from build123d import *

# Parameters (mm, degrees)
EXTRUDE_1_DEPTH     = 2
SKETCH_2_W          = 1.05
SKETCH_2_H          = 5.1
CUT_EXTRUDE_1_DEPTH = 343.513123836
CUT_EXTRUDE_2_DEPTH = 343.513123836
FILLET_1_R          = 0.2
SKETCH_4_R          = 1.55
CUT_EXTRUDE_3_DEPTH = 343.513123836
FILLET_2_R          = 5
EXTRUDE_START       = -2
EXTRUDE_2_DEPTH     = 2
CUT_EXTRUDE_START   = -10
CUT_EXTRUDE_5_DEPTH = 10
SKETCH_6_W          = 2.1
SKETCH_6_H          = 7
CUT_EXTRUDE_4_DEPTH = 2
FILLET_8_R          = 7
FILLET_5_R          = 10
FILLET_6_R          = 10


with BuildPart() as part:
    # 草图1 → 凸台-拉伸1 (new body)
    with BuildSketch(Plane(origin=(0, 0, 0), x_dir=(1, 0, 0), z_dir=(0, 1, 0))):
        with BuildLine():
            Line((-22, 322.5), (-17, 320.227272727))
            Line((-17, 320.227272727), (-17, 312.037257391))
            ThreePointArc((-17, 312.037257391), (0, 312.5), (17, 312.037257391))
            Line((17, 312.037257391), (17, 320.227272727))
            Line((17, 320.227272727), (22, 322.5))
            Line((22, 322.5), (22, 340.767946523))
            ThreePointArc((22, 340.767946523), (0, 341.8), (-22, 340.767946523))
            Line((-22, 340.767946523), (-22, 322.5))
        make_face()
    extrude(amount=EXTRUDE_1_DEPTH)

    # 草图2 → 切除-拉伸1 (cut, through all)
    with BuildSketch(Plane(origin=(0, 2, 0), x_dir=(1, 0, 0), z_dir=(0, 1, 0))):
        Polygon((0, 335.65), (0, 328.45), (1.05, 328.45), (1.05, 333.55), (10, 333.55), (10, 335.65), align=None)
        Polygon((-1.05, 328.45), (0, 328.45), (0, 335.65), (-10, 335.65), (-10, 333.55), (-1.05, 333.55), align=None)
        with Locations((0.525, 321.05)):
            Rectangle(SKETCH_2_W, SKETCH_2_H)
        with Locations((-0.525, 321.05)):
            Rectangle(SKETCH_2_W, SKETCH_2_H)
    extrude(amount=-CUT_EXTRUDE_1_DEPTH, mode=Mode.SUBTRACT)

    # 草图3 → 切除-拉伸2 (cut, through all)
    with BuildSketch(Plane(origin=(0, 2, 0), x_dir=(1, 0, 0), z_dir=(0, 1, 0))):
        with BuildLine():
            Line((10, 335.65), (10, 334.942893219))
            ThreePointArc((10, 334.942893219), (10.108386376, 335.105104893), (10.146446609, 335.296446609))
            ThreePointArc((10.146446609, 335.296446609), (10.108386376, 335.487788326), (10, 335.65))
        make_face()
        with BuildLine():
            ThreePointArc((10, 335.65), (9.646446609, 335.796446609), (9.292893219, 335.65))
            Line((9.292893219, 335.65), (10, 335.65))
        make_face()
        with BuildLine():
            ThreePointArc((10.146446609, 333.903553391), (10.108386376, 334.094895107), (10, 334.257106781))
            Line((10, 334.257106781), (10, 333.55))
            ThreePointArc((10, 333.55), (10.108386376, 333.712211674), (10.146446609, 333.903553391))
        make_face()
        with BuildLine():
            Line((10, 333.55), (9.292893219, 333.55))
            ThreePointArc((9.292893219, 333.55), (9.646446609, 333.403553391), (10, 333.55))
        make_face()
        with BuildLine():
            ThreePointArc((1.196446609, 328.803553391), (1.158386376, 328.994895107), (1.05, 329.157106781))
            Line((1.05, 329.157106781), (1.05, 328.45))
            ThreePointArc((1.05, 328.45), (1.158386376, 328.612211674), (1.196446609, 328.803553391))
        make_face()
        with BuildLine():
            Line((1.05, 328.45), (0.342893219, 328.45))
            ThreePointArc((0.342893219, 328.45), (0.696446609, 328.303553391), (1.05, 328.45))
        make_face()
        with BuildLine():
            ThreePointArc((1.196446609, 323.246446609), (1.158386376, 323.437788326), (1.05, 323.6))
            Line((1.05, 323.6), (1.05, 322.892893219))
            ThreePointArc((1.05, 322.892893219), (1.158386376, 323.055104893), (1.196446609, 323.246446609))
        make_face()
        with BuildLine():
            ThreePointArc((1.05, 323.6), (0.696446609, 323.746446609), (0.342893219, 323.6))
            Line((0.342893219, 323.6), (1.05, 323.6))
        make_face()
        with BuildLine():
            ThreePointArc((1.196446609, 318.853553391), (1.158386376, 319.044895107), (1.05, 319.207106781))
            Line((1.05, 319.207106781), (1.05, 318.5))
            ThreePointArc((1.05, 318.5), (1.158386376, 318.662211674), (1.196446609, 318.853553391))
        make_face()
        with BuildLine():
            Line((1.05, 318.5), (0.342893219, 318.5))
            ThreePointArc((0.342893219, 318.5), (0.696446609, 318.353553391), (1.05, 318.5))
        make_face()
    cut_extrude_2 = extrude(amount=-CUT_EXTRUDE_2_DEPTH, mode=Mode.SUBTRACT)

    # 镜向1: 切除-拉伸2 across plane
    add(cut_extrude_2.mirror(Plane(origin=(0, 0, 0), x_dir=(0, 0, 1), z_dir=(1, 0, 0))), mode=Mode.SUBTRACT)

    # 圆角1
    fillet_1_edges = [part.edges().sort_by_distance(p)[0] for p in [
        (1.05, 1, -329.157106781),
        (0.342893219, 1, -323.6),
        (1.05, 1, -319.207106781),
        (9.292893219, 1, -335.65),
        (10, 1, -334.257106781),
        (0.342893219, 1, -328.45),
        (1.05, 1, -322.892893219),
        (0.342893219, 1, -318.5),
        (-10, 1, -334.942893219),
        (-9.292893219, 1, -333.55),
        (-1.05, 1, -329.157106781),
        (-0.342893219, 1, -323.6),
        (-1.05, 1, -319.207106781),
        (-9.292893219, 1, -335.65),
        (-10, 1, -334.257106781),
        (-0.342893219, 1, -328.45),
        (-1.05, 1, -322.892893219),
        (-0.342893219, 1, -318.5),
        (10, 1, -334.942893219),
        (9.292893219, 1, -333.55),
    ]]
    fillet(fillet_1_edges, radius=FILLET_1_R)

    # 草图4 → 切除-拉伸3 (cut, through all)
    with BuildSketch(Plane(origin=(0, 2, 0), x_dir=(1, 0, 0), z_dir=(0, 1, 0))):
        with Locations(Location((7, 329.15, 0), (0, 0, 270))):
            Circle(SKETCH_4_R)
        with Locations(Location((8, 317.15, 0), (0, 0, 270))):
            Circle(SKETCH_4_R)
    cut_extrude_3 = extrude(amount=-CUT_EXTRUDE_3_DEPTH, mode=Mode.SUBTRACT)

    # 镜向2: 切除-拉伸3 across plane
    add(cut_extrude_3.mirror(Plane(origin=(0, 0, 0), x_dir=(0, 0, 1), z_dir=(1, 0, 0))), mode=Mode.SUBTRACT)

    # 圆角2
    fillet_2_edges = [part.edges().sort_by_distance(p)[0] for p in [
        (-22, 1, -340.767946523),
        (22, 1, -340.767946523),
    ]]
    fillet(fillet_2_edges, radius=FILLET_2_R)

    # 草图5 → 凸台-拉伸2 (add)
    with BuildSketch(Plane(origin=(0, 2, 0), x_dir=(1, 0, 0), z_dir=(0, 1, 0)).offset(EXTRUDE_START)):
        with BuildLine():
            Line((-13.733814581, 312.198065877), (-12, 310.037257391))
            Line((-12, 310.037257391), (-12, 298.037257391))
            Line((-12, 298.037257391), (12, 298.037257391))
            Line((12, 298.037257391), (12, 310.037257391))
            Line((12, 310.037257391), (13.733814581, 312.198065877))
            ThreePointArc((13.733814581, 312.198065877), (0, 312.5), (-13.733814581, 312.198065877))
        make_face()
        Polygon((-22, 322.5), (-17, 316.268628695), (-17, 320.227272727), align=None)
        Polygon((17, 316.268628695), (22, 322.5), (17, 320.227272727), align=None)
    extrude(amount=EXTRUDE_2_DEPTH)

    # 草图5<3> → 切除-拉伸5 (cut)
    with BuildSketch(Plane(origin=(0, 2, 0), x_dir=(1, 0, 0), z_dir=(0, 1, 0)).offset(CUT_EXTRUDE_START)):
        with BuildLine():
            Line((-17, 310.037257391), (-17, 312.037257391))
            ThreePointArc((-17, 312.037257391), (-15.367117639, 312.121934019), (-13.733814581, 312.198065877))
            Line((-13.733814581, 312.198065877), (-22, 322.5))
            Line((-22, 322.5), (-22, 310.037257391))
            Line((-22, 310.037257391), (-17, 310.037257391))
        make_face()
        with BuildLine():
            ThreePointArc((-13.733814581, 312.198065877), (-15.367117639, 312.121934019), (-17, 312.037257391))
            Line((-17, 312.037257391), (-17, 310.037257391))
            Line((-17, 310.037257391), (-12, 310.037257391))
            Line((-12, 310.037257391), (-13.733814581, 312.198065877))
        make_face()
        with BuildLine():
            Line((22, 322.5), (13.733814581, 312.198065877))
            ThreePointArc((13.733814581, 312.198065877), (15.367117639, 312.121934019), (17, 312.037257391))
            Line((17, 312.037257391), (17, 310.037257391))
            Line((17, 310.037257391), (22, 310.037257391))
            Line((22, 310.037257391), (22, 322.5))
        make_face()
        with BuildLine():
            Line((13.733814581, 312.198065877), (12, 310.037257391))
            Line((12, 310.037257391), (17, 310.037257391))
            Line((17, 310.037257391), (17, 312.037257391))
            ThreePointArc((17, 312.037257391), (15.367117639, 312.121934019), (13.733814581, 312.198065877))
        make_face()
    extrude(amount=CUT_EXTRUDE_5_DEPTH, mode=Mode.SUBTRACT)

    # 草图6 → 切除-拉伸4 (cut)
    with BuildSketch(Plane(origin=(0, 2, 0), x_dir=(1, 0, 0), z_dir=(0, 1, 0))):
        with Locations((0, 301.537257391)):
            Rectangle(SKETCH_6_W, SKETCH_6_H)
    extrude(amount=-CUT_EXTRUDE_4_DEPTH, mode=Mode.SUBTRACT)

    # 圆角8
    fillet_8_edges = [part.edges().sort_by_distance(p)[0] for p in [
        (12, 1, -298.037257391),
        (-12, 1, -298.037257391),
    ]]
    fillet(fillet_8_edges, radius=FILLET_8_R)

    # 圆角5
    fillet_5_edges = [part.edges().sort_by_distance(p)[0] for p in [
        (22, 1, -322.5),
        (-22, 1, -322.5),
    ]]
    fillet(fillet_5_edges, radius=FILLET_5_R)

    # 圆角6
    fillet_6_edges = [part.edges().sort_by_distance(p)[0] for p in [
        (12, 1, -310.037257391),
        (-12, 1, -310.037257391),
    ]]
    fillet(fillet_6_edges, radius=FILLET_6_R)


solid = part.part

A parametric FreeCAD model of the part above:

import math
import FreeCAD as App
import Part
import Sketcher
from FreeCAD import Vector
Q = App.Units.Quantity


def edges_at(feature, points):
    """Names of the edges that pass closest to the given points."""
    edges = feature.Shape.Edges
    near = lambda p: min(range(len(edges)), key=lambda i: edges[i].distToShape(Part.Vertex(*p))[0])
    return sorted({f"Edge{near(p) + 1}" for p in points})

doc = App.newDocument("Part")
body = doc.addObject("PartDesign::Body", "Body")

sketch1 = body.newObject("Sketcher::SketchObject", "Sketch")
sketch1.AttachmentSupport = (doc.getObject("XZ_Plane"), [""])
sketch1.MapMode = "FlatFace"
sketch1.addGeometry(Part.LineSegment(Vector(-22, -322.5, 0), Vector(-17, -320.227273, 0)), False)
sketch1.addGeometry(Part.LineSegment(Vector(-17, -320.227273, 0), Vector(-17, -312.037257, 0)), False)
sketch1.addGeometry(Part.ArcOfCircle(Part.Circle(Vector(0, 0, 0), Vector(0, 0, 1), 312.5), math.radians(-93.11843), math.radians(-86.88157)), False)
sketch1.addGeometry(Part.LineSegment(Vector(17, -312.037257, 0), Vector(17, -320.227273, 0)), False)
sketch1.addGeometry(Part.LineSegment(Vector(17, -320.227273, 0), Vector(22, -322.5, 0)), False)
sketch1.addGeometry(Part.LineSegment(Vector(22, -322.5, 0), Vector(22, -340.767947, 0)), False)
sketch1.addGeometry(Part.ArcOfCircle(Part.Circle(Vector(0, -106.8, 0), Vector(0, 0, 1), 235), math.radians(-95.371726), math.radians(-84.628274)), False)
sketch1.addGeometry(Part.LineSegment(Vector(-22, -340.767947, 0), Vector(-22, -322.5, 0)), False)
sketch1.addConstraint(Sketcher.Constraint("Coincident", 0, 2, 1, 1))
sketch1.addConstraint(Sketcher.Constraint("Coincident", 1, 2, 2, 1))
sketch1.addConstraint(Sketcher.Constraint("Coincident", 2, 2, 3, 1))
sketch1.addConstraint(Sketcher.Constraint("Coincident", 3, 2, 4, 1))
sketch1.addConstraint(Sketcher.Constraint("Coincident", 4, 2, 5, 1))
sketch1.addConstraint(Sketcher.Constraint("Coincident", 5, 2, 6, 2))
sketch1.addConstraint(Sketcher.Constraint("Coincident", 6, 1, 7, 1))
sketch1.addConstraint(Sketcher.Constraint("Coincident", 7, 2, 0, 1))
sketch1.addConstraint(Sketcher.Constraint("Vertical", 1))
sketch1.addConstraint(Sketcher.Constraint("Vertical", 3))
sketch1.addConstraint(Sketcher.Constraint("Vertical", 5))
sketch1.addConstraint(Sketcher.Constraint("Vertical", 7))
sketch1.addConstraint(Sketcher.Constraint("Coincident", 2, 3, -1, 1))
sketch1.addConstraint(Sketcher.Constraint("Symmetric", 0, 2, 3, 2, -2))
sketch1.addConstraint(Sketcher.Constraint("Symmetric", 5, 2, 6, 1, -2))
sketch1.addConstraint(Sketcher.Constraint("Horizontal", 4, 2, 7, 2))
sketch1.addConstraint(Sketcher.Constraint("Radius", 6, Q("235 mm")))
sketch1.addConstraint(Sketcher.Constraint("Radius", 2, Q("312.5 mm")))
sketch1.addConstraint(Sketcher.Constraint("DistanceX", 0, 2, -1, 1, Q("17 mm")))
sketch1.addConstraint(Sketcher.Constraint("DistanceX", -1, 1, 4, 2, Q("22 mm")))
sketch1.addConstraint(Sketcher.Constraint("DistanceY", 6, 3, -1, 1, Q("106.8 mm")))
sketch1.addConstraint(Sketcher.Constraint("DistanceY", 4, 2, -1, 1, Q("322.5 mm")))
sketch1.addConstraint(Sketcher.Constraint("DistanceY", 1, 1, 1, 2, Q("8.190015 mm")))
pad1 = body.newObject("PartDesign::Pad", "Pad")
pad1.Profile = sketch1
pad1.Length = 2
pad1.Reversed = True

sketch2 = body.newObject("Sketcher::SketchObject", "Sketch001")
sketch2.AttachmentSupport = (doc.getObject("XZ_Plane"), [""])
sketch2.MapMode = "FlatFace"
sketch2.AttachmentOffset = App.Placement(Vector(0, 0, -2), App.Rotation())
sketch2.addGeometry(Part.LineSegment(Vector(1.05, -328.45, 0), Vector(1.05, -333.55, 0)), False)
sketch2.addGeometry(Part.LineSegment(Vector(1.05, -333.55, 0), Vector(10, -333.55, 0)), False)
sketch2.addGeometry(Part.LineSegment(Vector(10, -333.55, 0), Vector(10, -335.65, 0)), False)
sketch2.addGeometry(Part.LineSegment(Vector(10, -335.65, 0), Vector(-10, -335.65, 0)), False)
sketch2.addGeometry(Part.LineSegment(Vector(-10, -335.65, 0), Vector(-10, -333.55, 0)), False)
sketch2.addGeometry(Part.LineSegment(Vector(-10, -333.55, 0), Vector(-1.05, -333.55, 0)), False)
sketch2.addGeometry(Part.LineSegment(Vector(-1.05, -333.55, 0), Vector(-1.05, -328.45, 0)), False)
sketch2.addGeometry(Part.LineSegment(Vector(-1.05, -328.45, 0), Vector(1.05, -328.45, 0)), False)
sketch2.addGeometry(Part.LineSegment(Vector(1.05, -318.5, 0), Vector(1.05, -323.6, 0)), False)
sketch2.addGeometry(Part.LineSegment(Vector(1.05, -323.6, 0), Vector(-1.05, -323.6, 0)), False)
sketch2.addGeometry(Part.LineSegment(Vector(-1.05, -323.6, 0), Vector(-1.05, -318.5, 0)), False)
sketch2.addGeometry(Part.LineSegment(Vector(-1.05, -318.5, 0), Vector(1.05, -318.5, 0)), False)
sketch2.addConstraint(Sketcher.Constraint("Coincident", 0, 2, 1, 1))
sketch2.addConstraint(Sketcher.Constraint("Coincident", 1, 2, 2, 1))
sketch2.addConstraint(Sketcher.Constraint("Coincident", 2, 2, 3, 1))
sketch2.addConstraint(Sketcher.Constraint("Coincident", 3, 2, 4, 1))
sketch2.addConstraint(Sketcher.Constraint("Coincident", 4, 2, 5, 1))
sketch2.addConstraint(Sketcher.Constraint("Coincident", 5, 2, 6, 1))
sketch2.addConstraint(Sketcher.Constraint("Coincident", 6, 2, 7, 1))
sketch2.addConstraint(Sketcher.Constraint("Coincident", 7, 2, 0, 1))
sketch2.addConstraint(Sketcher.Constraint("Coincident", 8, 2, 9, 1))
sketch2.addConstraint(Sketcher.Constraint("Coincident", 9, 2, 10, 1))
sketch2.addConstraint(Sketcher.Constraint("Coincident", 10, 2, 11, 1))
sketch2.addConstraint(Sketcher.Constraint("Coincident", 11, 2, 8, 1))
sketch2.addConstraint(Sketcher.Constraint("Vertical", 0))
sketch2.addConstraint(Sketcher.Constraint("Horizontal", 1))
sketch2.addConstraint(Sketcher.Constraint("Vertical", 2))
sketch2.addConstraint(Sketcher.Constraint("Horizontal", 3))
sketch2.addConstraint(Sketcher.Constraint("Vertical", 4))
sketch2.addConstraint(Sketcher.Constraint("Horizontal", 5))
sketch2.addConstraint(Sketcher.Constraint("Vertical", 6))
sketch2.addConstraint(Sketcher.Constraint("Horizontal", 7))
sketch2.addConstraint(Sketcher.Constraint("Vertical", 8))
sketch2.addConstraint(Sketcher.Constraint("Horizontal", 9))
sketch2.addConstraint(Sketcher.Constraint("Vertical", 10))
sketch2.addConstraint(Sketcher.Constraint("Horizontal", 11))
sketch2.addConstraint(Sketcher.Constraint("Symmetric", 1, 2, 4, 2, -2))
sketch2.addConstraint(Sketcher.Constraint("Vertical", 7, 2, 8, 2))
sketch2.addConstraint(Sketcher.Constraint("Vertical", 6, 2, 9, 2))
sketch2.addConstraint(Sketcher.Constraint("Equal", 1, 5))
sketch2.addConstraint(Sketcher.Constraint("Equal", 11, 2))
sketch2.addConstraint(Sketcher.Constraint("Equal", 6, 8))
sketch2.addConstraint(Sketcher.Constraint("DistanceX", 3, 2, 3, 1, Q("20 mm")))
sketch2.addConstraint(Sketcher.Constraint("DistanceX", 7, 1, 7, 2, Q("2.1 mm")))
sketch2.addConstraint(Sketcher.Constraint("DistanceY", 0, 2, 0, 1, Q("5.1 mm")))
sketch2.addConstraint(Sketcher.Constraint("DistanceY", 8, 2, -1, 1, Q("323.6 mm")))
sketch2.addConstraint(Sketcher.Constraint("DistanceY", 0, 2, -1, 1, Q("333.55 mm")))
pocket1 = body.newObject("PartDesign::Pocket", "Pocket")
pocket1.Profile = sketch2
pocket1.Type = "ThroughAll"
pocket1.Reversed = True

sketch3 = body.newObject("Sketcher::SketchObject", "Sketch002")
sketch3.AttachmentSupport = (doc.getObject("XZ_Plane"), [""])
sketch3.MapMode = "FlatFace"
sketch3.AttachmentOffset = App.Placement(Vector(0, 0, -2), App.Rotation())
sketch3.addGeometry(Part.LineSegment(Vector(10, -335.65, 0), Vector(10, -334.942893, 0)), False)
sketch3.addGeometry(Part.ArcOfCircle(Part.Circle(Vector(9.646447, -335.296447, 0), Vector(0, 0, 1), 0.5), math.radians(0), math.radians(45)), False)
sketch3.addGeometry(Part.ArcOfCircle(Part.Circle(Vector(9.646447, -335.296447, 0), Vector(0, 0, 1), 0.5), math.radians(-45), math.radians(0)), False)
sketch3.addGeometry(Part.ArcOfCircle(Part.Circle(Vector(9.646447, -335.296447, 0), Vector(0, 0, 1), 0.5), math.radians(-135), math.radians(-45)), False)
sketch3.addGeometry(Part.LineSegment(Vector(9.292893, -335.65, 0), Vector(10, -335.65, 0)), False)
sketch3.addGeometry(Part.ArcOfCircle(Part.Circle(Vector(9.646447, -333.903553, 0), Vector(0, 0, 1), 0.5), math.radians(-45), math.radians(0)), False)
sketch3.addGeometry(Part.LineSegment(Vector(10, -334.257107, 0), Vector(10, -333.55, 0)), False)
sketch3.addGeometry(Part.ArcOfCircle(Part.Circle(Vector(9.646447, -333.903553, 0), Vector(0, 0, 1), 0.5), math.radians(0), math.radians(45)), False)
sketch3.addGeometry(Part.LineSegment(Vector(10, -333.55, 0), Vector(9.292893, -333.55, 0)), False)
sketch3.addGeometry(Part.ArcOfCircle(Part.Circle(Vector(9.646447, -333.903553, 0), Vector(0, 0, 1), 0.5), math.radians(45), math.radians(135)), False)
sketch3.addGeometry(Part.ArcOfCircle(Part.Circle(Vector(0.696447, -328.803553, 0), Vector(0, 0, 1), 0.5), math.radians(-45), math.radians(0)), False)
sketch3.addGeometry(Part.LineSegment(Vector(1.05, -329.157107, 0), Vector(1.05, -328.45, 0)), False)
sketch3.addGeometry(Part.ArcOfCircle(Part.Circle(Vector(0.696447, -328.803553, 0), Vector(0, 0, 1), 0.5), math.radians(0), math.radians(45)), False)
sketch3.addGeometry(Part.LineSegment(Vector(1.05, -328.45, 0), Vector(0.342893, -328.45, 0)), False)
sketch3.addGeometry(Part.ArcOfCircle(Part.Circle(Vector(0.696447, -328.803553, 0), Vector(0, 0, 1), 0.5), math.radians(45), math.radians(135)), False)
sketch3.addGeometry(Part.ArcOfCircle(Part.Circle(Vector(0.696447, -323.246447, 0), Vector(0, 0, 1), 0.5), math.radians(-45), math.radians(0)), False)
sketch3.addGeometry(Part.LineSegment(Vector(1.05, -323.6, 0), Vector(1.05, -322.892893, 0)), False)
sketch3.addGeometry(Part.ArcOfCircle(Part.Circle(Vector(0.696447, -323.246447, 0), Vector(0, 0, 1), 0.5), math.radians(0), math.radians(45)), False)
sketch3.addGeometry(Part.ArcOfCircle(Part.Circle(Vector(0.696447, -323.246447, 0), Vector(0, 0, 1), 0.5), math.radians(-135), math.radians(-45)), False)
sketch3.addGeometry(Part.LineSegment(Vector(0.342893, -323.6, 0), Vector(1.05, -323.6, 0)), False)
sketch3.addGeometry(Part.ArcOfCircle(Part.Circle(Vector(0.696447, -318.853553, 0), Vector(0, 0, 1), 0.5), math.radians(-45), math.radians(0)), False)
sketch3.addGeometry(Part.LineSegment(Vector(1.05, -319.207107, 0), Vector(1.05, -318.5, 0)), False)
sketch3.addGeometry(Part.ArcOfCircle(Part.Circle(Vector(0.696447, -318.853553, 0), Vector(0, 0, 1), 0.5), math.radians(0), math.radians(45)), False)
sketch3.addGeometry(Part.LineSegment(Vector(1.05, -318.5, 0), Vector(0.342893, -318.5, 0)), False)
sketch3.addGeometry(Part.ArcOfCircle(Part.Circle(Vector(0.696447, -318.853553, 0), Vector(0, 0, 1), 0.5), math.radians(45), math.radians(135)), False)
sketch3.addConstraint(Sketcher.Constraint("Coincident", 0, 2, 1, 2))
sketch3.addConstraint(Sketcher.Constraint("Tangent", 1, 1, 2, 2))
sketch3.addConstraint(Sketcher.Constraint("Coincident", 2, 1, 0, 1))
sketch3.addConstraint(Sketcher.Constraint("Coincident", 3, 1, 4, 1))
sketch3.addConstraint(Sketcher.Constraint("Coincident", 4, 2, 3, 2))
sketch3.addConstraint(Sketcher.Constraint("Coincident", 5, 1, 6, 1))
sketch3.addConstraint(Sketcher.Constraint("Coincident", 6, 2, 7, 2))
sketch3.addConstraint(Sketcher.Constraint("Tangent", 7, 1, 5, 2))
sketch3.addConstraint(Sketcher.Constraint("Coincident", 8, 1, 9, 1))
sketch3.addConstraint(Sketcher.Constraint("Coincident", 9, 2, 8, 2))
sketch3.addConstraint(Sketcher.Constraint("Coincident", 10, 1, 11, 1))
sketch3.addConstraint(Sketcher.Constraint("Coincident", 11, 2, 12, 2))
sketch3.addConstraint(Sketcher.Constraint("Tangent", 12, 1, 10, 2))
sketch3.addConstraint(Sketcher.Constraint("Coincident", 13, 1, 14, 1))
sketch3.addConstraint(Sketcher.Constraint("Coincident", 14, 2, 13, 2))
sketch3.addConstraint(Sketcher.Constraint("Coincident", 15, 1, 16, 1))
sketch3.addConstraint(Sketcher.Constraint("Coincident", 16, 2, 17, 2))
sketch3.addConstraint(Sketcher.Constraint("Tangent", 17, 1, 15, 2))
sketch3.addConstraint(Sketcher.Constraint("Coincident", 18, 1, 19, 1))
sketch3.addConstraint(Sketcher.Constraint("Coincident", 19, 2, 18, 2))
sketch3.addConstraint(Sketcher.Constraint("Coincident", 20, 1, 21, 1))
sketch3.addConstraint(Sketcher.Constraint("Coincident", 21, 2, 22, 2))
sketch3.addConstraint(Sketcher.Constraint("Tangent", 22, 1, 20, 2))
sketch3.addConstraint(Sketcher.Constraint("Coincident", 23, 1, 24, 1))
sketch3.addConstraint(Sketcher.Constraint("Coincident", 24, 2, 23, 2))
sketch3.addConstraint(Sketcher.Constraint("Vertical", 0))
sketch3.addConstraint(Sketcher.Constraint("Horizontal", 4))
sketch3.addConstraint(Sketcher.Constraint("Vertical", 6))
sketch3.addConstraint(Sketcher.Constraint("Horizontal", 8))
sketch3.addConstraint(Sketcher.Constraint("Vertical", 11))
sketch3.addConstraint(Sketcher.Constraint("Horizontal", 13))
sketch3.addConstraint(Sketcher.Constraint("Vertical", 16))
sketch3.addConstraint(Sketcher.Constraint("Horizontal", 19))
sketch3.addConstraint(Sketcher.Constraint("Vertical", 21))
sketch3.addConstraint(Sketcher.Constraint("Horizontal", 23))
sketch3.addConstraint(Sketcher.Constraint("Coincident", 3, 3, 1, 3))
sketch3.addConstraint(Sketcher.Constraint("Coincident", 9, 3, 5, 3))
sketch3.addConstraint(Sketcher.Constraint("Coincident", 14, 3, 10, 3))
sketch3.addConstraint(Sketcher.Constraint("Coincident", 18, 3, 15, 3))
sketch3.addConstraint(Sketcher.Constraint("Coincident", 24, 3, 20, 3))
sketch3.addConstraint(Sketcher.Constraint("Coincident", 4, 2, 2, 1))
sketch3.addConstraint(Sketcher.Constraint("Coincident", 8, 1, 6, 2))
sketch3.addConstraint(Sketcher.Constraint("Coincident", 13, 1, 11, 2))
sketch3.addConstraint(Sketcher.Constraint("Coincident", 19, 2, 15, 1))
sketch3.addConstraint(Sketcher.Constraint("Coincident", 23, 1, 21, 2))
sketch3.addConstraint(Sketcher.Constraint("Equal", 1, 2))
sketch3.addConstraint(Sketcher.Constraint("Equal", 3, 5))
sketch3.addConstraint(Sketcher.Constraint("Equal", 5, 7))
sketch3.addConstraint(Sketcher.Constraint("Equal", 9, 10))
sketch3.addConstraint(Sketcher.Constraint("Equal", 10, 12))
sketch3.addConstraint(Sketcher.Constraint("Equal", 14, 15))
sketch3.addConstraint(Sketcher.Constraint("Equal", 15, 17))
sketch3.addConstraint(Sketcher.Constraint("Equal", 18, 20))
sketch3.addConstraint(Sketcher.Constraint("Equal", 20, 22))
sketch3.addConstraint(Sketcher.Constraint("Horizontal", 3, 3, 1, 1))
sketch3.addConstraint(Sketcher.Constraint("Horizontal", 9, 3, 7, 1))
sketch3.addConstraint(Sketcher.Constraint("Horizontal", 14, 3, 12, 1))
sketch3.addConstraint(Sketcher.Constraint("Horizontal", 18, 3, 17, 1))
sketch3.addConstraint(Sketcher.Constraint("Horizontal", 24, 3, 22, 1))
sketch3.addConstraint(Sketcher.Constraint("Vertical", 3, 3, 5, 3))
sketch3.addConstraint(Sketcher.Constraint("Vertical", 14, 3, 15, 3))
sketch3.addConstraint(Sketcher.Constraint("Vertical", 18, 3, 20, 3))
sketch3.addConstraint(Sketcher.Constraint("Vertical", 4, 2, 5, 1))
sketch3.addConstraint(Sketcher.Constraint("Vertical", 13, 1, 15, 1))
sketch3.addConstraint(Sketcher.Constraint("Vertical", 19, 2, 20, 1))
sketch3.addConstraint(Sketcher.Constraint("Equal", 8, 13))
sketch3.addConstraint(Sketcher.Constraint("Equal", 23, 0))
sketch3.addConstraint(Sketcher.Constraint("Radius", 1, Q("0.5 mm")))
sketch3.addConstraint(Sketcher.Constraint("DistanceX", -1, 1, 0, 2, Q("10 mm")))
sketch3.addConstraint(Sketcher.Constraint("DistanceY", 15, 1, -1, 1, Q("323.6 mm")))
sketch3.addConstraint(Sketcher.Constraint("DistanceY", 21, 2, -1, 1, Q("318.5 mm")))
sketch3.addConstraint(Sketcher.Constraint("DistanceY", 9, 3, 10, 3, Q("5.1 mm")))
sketch3.addConstraint(Sketcher.Constraint("DistanceY", 2, 1, -1, 1, Q("335.65 mm")))
sketch3.addConstraint(Sketcher.Constraint("DistanceY", 6, 2, -1, 1, Q("333.55 mm")))
sketch3.addConstraint(Sketcher.Constraint("DistanceX", -1, 1, 10, 1, Q("1.05 mm")))
pocket2 = body.newObject("PartDesign::Pocket", "Pocket001")
pocket2.Profile = sketch3
pocket2.Type = "ThroughAll"
pocket2.Reversed = True
doc.recompute()

mirrored = body.newObject("PartDesign::Mirrored", "Mirrored")
mirrored.Originals = [pocket2]
mirrored.MirrorPlane = (doc.getObject("YZ_Plane"), [""])
body.Tip = mirrored
doc.recompute()

fillet = body.newObject("PartDesign::Fillet", "Fillet")
fillet.Base = (mirrored, edges_at(mirrored, [
    (1.05, 1, -329.157),
    (0.343, 1, -323.6),
    (1.05, 1, -319.207),
    (9.293, 1, -335.65),
    (10, 1, -334.257),
    (0.343, 1, -328.45),
    (1.05, 1, -322.893),
    (0.343, 1, -318.5),
    (-10, 1, -334.943),
    (-9.293, 1, -333.55),
    (-1.05, 1, -329.157),
    (-0.343, 1, -323.6),
    (-1.05, 1, -319.207),
    (-9.293, 1, -335.65),
    (-10, 1, -334.257),
    (-0.343, 1, -328.45),
    (-1.05, 1, -322.893),
    (-0.343, 1, -318.5),
    (10, 1, -334.943),
    (9.293, 1, -333.55),
]))
fillet.Radius = 0.2

sketch4 = body.newObject("Sketcher::SketchObject", "Sketch003")
sketch4.AttachmentSupport = (doc.getObject("XZ_Plane"), [""])
sketch4.MapMode = "FlatFace"
sketch4.AttachmentOffset = App.Placement(Vector(0, 0, -2), App.Rotation())
sketch4.addGeometry(Part.Circle(Vector(7, -329.15, 0), Vector(0, 0, 1), 1.55), False)
sketch4.addGeometry(Part.Circle(Vector(8, -317.15, 0), Vector(0, 0, 1), 1.55), False)
sketch4.addConstraint(Sketcher.Constraint("Equal", 0, 1))
sketch4.addConstraint(Sketcher.Constraint("Diameter", 0, Q("3.1 mm")))
sketch4.addConstraint(Sketcher.Constraint("DistanceX", -1, 1, 0, 3, Q("7 mm")))
sketch4.addConstraint(Sketcher.Constraint("DistanceX", -1, 1, 1, 3, Q("8 mm")))
sketch4.addConstraint(Sketcher.Constraint("DistanceY", 0, 3, 1, 3, Q("12 mm")))
sketch4.addConstraint(Sketcher.Constraint("DistanceY", 0, 3, -1, 1, Q("329.15 mm")))
pocket3 = body.newObject("PartDesign::Pocket", "Pocket002")
pocket3.Profile = sketch4
pocket3.Type = "ThroughAll"
pocket3.Reversed = True
doc.recompute()

mirrored2 = body.newObject("PartDesign::Mirrored", "Mirrored001")
mirrored2.Originals = [pocket3]
mirrored2.MirrorPlane = (doc.getObject("YZ_Plane"), [""])
body.Tip = mirrored2
doc.recompute()

fillet2 = body.newObject("PartDesign::Fillet", "Fillet001")
fillet2.Base = (mirrored2, edges_at(mirrored2, [(-22, 1, -340.768), (22, 1, -340.768)]))
fillet2.Radius = 5

sketch5 = body.newObject("Sketcher::SketchObject", "Sketch004")
sketch5.AttachmentSupport = (doc.getObject("XZ_Plane"), [""])
sketch5.MapMode = "FlatFace"
sketch5.addGeometry(Part.LineSegment(Vector(-13.733815, -312.198066, 0), Vector(-12, -310.037257, 0)), False)
sketch5.addGeometry(Part.LineSegment(Vector(-12, -310.037257, 0), Vector(-12, -298.037257, 0)), False)
sketch5.addGeometry(Part.LineSegment(Vector(-12, -298.037257, 0), Vector(12, -298.037257, 0)), False)
sketch5.addGeometry(Part.LineSegment(Vector(12, -298.037257, 0), Vector(12, -310.037257, 0)), False)
sketch5.addGeometry(Part.LineSegment(Vector(12, -310.037257, 0), Vector(13.733815, -312.198066, 0)), False)
sketch5.addGeometry(Part.ArcOfCircle(Part.Circle(Vector(0, 0, 0), Vector(0, 0, 1), 312.5), math.radians(-92.518858), math.radians(-87.481142)), False)
sketch5.addGeometry(Part.LineSegment(Vector(-22, -322.5, 0), Vector(-17, -316.268629, 0)), False)
sketch5.addGeometry(Part.LineSegment(Vector(-17, -316.268629, 0), Vector(-17, -320.227273, 0)), False)
sketch5.addGeometry(Part.LineSegment(Vector(-17, -320.227273, 0), Vector(-22, -322.5, 0)), False)
sketch5.addGeometry(Part.LineSegment(Vector(17, -316.268629, 0), Vector(22, -322.5, 0)), False)
sketch5.addGeometry(Part.LineSegment(Vector(22, -322.5, 0), Vector(17, -320.227273, 0)), False)
sketch5.addGeometry(Part.LineSegment(Vector(17, -320.227273, 0), Vector(17, -316.268629, 0)), False)
sketch5.addConstraint(Sketcher.Constraint("Coincident", 0, 2, 1, 1))
sketch5.addConstraint(Sketcher.Constraint("Coincident", 1, 2, 2, 1))
sketch5.addConstraint(Sketcher.Constraint("Coincident", 2, 2, 3, 1))
sketch5.addConstraint(Sketcher.Constraint("Coincident", 3, 2, 4, 1))
sketch5.addConstraint(Sketcher.Constraint("Coincident", 4, 2, 5, 2))
sketch5.addConstraint(Sketcher.Constraint("Coincident", 5, 1, 0, 1))
sketch5.addConstraint(Sketcher.Constraint("Coincident", 6, 2, 7, 1))
sketch5.addConstraint(Sketcher.Constraint("Coincident", 7, 2, 8, 1))
sketch5.addConstraint(Sketcher.Constraint("Coincident", 8, 2, 6, 1))
sketch5.addConstraint(Sketcher.Constraint("Coincident", 9, 2, 10, 1))
sketch5.addConstraint(Sketcher.Constraint("Coincident", 10, 2, 11, 1))
sketch5.addConstraint(Sketcher.Constraint("Coincident", 11, 2, 9, 1))
sketch5.addConstraint(Sketcher.Constraint("Vertical", 1))
sketch5.addConstraint(Sketcher.Constraint("Horizontal", 2))
sketch5.addConstraint(Sketcher.Constraint("Vertical", 3))
sketch5.addConstraint(Sketcher.Constraint("Vertical", 7))
sketch5.addConstraint(Sketcher.Constraint("Vertical", 11))
sketch5.addConstraint(Sketcher.Constraint("Coincident", 5, 3, -1, 1))
sketch5.addConstraint(Sketcher.Constraint("Symmetric", 0, 2, 3, 2, -2))
sketch5.addConstraint(Sketcher.Constraint("Symmetric", 8, 2, 9, 2, -2))
sketch5.addConstraint(Sketcher.Constraint("Symmetric", 7, 2, 10, 2, -2))
sketch5.addConstraint(Sketcher.Constraint("Parallel", 0, 6))
sketch5.addConstraint(Sketcher.Constraint("Parallel", 4, 9))
sketch5.addConstraint(Sketcher.Constraint("Horizontal", 6, 2, 11, 2))
sketch5.addConstraint(Sketcher.Constraint("Radius", 5, Q("312.5 mm")))
sketch5.addConstraint(Sketcher.Constraint("DistanceX", 2, 1, 2, 2, Q("24 mm")))
sketch5.addConstraint(Sketcher.Constraint("DistanceY", 1, 1, 1, 2, Q("12 mm")))
sketch5.addConstraint(Sketcher.Constraint("DistanceX", 6, 2, -1, 1, Q("17 mm")))
sketch5.addConstraint(Sketcher.Constraint("DistanceX", 8, 2, -1, 1, Q("22 mm")))
sketch5.addConstraint(Sketcher.Constraint("DistanceY", 8, 2, -1, 1, Q("322.5 mm")))
sketch5.addConstraint(Sketcher.Constraint("DistanceY", 7, 2, 7, 1, Q("3.958644 mm")))
sketch5.addConstraint(Sketcher.Constraint("DistanceY", 6, 2, -1, 1, Q("316.268629 mm")))
sketch5.addConstraint(Sketcher.Constraint("DistanceY", 4, 2, 3, 2, Q("2.160808 mm")))
pad2 = body.newObject("PartDesign::Pad", "Pad001")
pad2.Profile = sketch5
pad2.Length = 2
pad2.Reversed = True

sketch6 = body.newObject("Sketcher::SketchObject", "Sketch005")
sketch6.AttachmentSupport = (doc.getObject("XZ_Plane"), [""])
sketch6.MapMode = "FlatFace"
sketch6.AttachmentOffset = App.Placement(Vector(0, 0, 8), App.Rotation())
sketch6.addGeometry(Part.LineSegment(Vector(-13.733815, -312.198066, 0), Vector(-22, -322.5, 0)), False)
sketch6.addGeometry(Part.LineSegment(Vector(-22, -322.5, 0), Vector(-22, -310.037257, 0)), False)
sketch6.addGeometry(Part.LineSegment(Vector(-22, -310.037257, 0), Vector(-12, -310.037257, 0)), False)
sketch6.addGeometry(Part.LineSegment(Vector(-12, -310.037257, 0), Vector(-13.733815, -312.198066, 0)), False)
sketch6.addGeometry(Part.LineSegment(Vector(22, -322.5, 0), Vector(13.733815, -312.198066, 0)), False)
sketch6.addGeometry(Part.LineSegment(Vector(13.733815, -312.198066, 0), Vector(12, -310.037257, 0)), False)
sketch6.addGeometry(Part.LineSegment(Vector(12, -310.037257, 0), Vector(22, -310.037257, 0)), False)
sketch6.addGeometry(Part.LineSegment(Vector(22, -310.037257, 0), Vector(22, -322.5, 0)), False)
sketch6.addConstraint(Sketcher.Constraint("Coincident", 0, 2, 1, 1))
sketch6.addConstraint(Sketcher.Constraint("Coincident", 1, 2, 2, 1))
sketch6.addConstraint(Sketcher.Constraint("Coincident", 2, 2, 3, 1))
sketch6.addConstraint(Sketcher.Constraint("Coincident", 3, 2, 0, 1))
sketch6.addConstraint(Sketcher.Constraint("Coincident", 4, 2, 5, 1))
sketch6.addConstraint(Sketcher.Constraint("Coincident", 5, 2, 6, 1))
sketch6.addConstraint(Sketcher.Constraint("Coincident", 6, 2, 7, 1))
sketch6.addConstraint(Sketcher.Constraint("Coincident", 7, 2, 4, 1))
sketch6.addConstraint(Sketcher.Constraint("Vertical", 1))
sketch6.addConstraint(Sketcher.Constraint("Horizontal", 2))
sketch6.addConstraint(Sketcher.Constraint("Horizontal", 6))
sketch6.addConstraint(Sketcher.Constraint("Vertical", 7))
sketch6.addConstraint(Sketcher.Constraint("Symmetric", 3, 2, 4, 2, -2))
sketch6.addConstraint(Sketcher.Constraint("Symmetric", 2, 2, 5, 2, -2))
sketch6.addConstraint(Sketcher.Constraint("Symmetric", 0, 2, 7, 2, -2))
sketch6.addConstraint(Sketcher.Constraint("Parallel", 0, 3))
sketch6.addConstraint(Sketcher.Constraint("DistanceX", 2, 1, 2, 2, Q("10 mm")))
sketch6.addConstraint(Sketcher.Constraint("DistanceX", 0, 2, -1, 1, Q("22 mm")))
sketch6.addConstraint(Sketcher.Constraint("DistanceY", 0, 2, -1, 1, Q("322.5 mm")))
sketch6.addConstraint(Sketcher.Constraint("Distance", 0, Q("13.208318 mm")))
sketch6.addConstraint(Sketcher.Constraint("DistanceY", 1, 1, 1, 2, Q("12.462743 mm")))
pocket4 = body.newObject("PartDesign::Pocket", "Pocket003")
pocket4.Profile = sketch6
pocket4.Length = 10

sketch7 = body.newObject("Sketcher::SketchObject", "Sketch006")
sketch7.AttachmentSupport = (doc.getObject("XZ_Plane"), [""])
sketch7.MapMode = "FlatFace"
sketch7.AttachmentOffset = App.Placement(Vector(0, 0, -2), App.Rotation())
sketch7.addGeometry(Part.LineSegment(Vector(-1.05, -305.037257, 0), Vector(-1.05, -298.037257, 0)), False)
sketch7.addGeometry(Part.LineSegment(Vector(-1.05, -298.037257, 0), Vector(1.05, -298.037257, 0)), False)
sketch7.addGeometry(Part.LineSegment(Vector(1.05, -298.037257, 0), Vector(1.05, -305.037257, 0)), False)
sketch7.addGeometry(Part.LineSegment(Vector(1.05, -305.037257, 0), Vector(-1.05, -305.037257, 0)), False)
sketch7.addConstraint(Sketcher.Constraint("Coincident", 0, 2, 1, 1))
sketch7.addConstraint(Sketcher.Constraint("Coincident", 1, 2, 2, 1))
sketch7.addConstraint(Sketcher.Constraint("Coincident", 2, 2, 3, 1))
sketch7.addConstraint(Sketcher.Constraint("Coincident", 3, 2, 0, 1))
sketch7.addConstraint(Sketcher.Constraint("Vertical", 0))
sketch7.addConstraint(Sketcher.Constraint("Horizontal", 1))
sketch7.addConstraint(Sketcher.Constraint("Vertical", 2))
sketch7.addConstraint(Sketcher.Constraint("Horizontal", 3))
sketch7.addConstraint(Sketcher.Constraint("DistanceY", 0, 1, 0, 2, Q("7 mm")))
sketch7.addConstraint(Sketcher.Constraint("DistanceX", 1, 1, 1, 2, Q("2.1 mm")))
sketch7.addConstraint(Sketcher.Constraint("DistanceX", 0, 2, -1, 1, Q("1.05 mm")))
sketch7.addConstraint(Sketcher.Constraint("DistanceY", 0, 2, -1, 1, Q("298.037257 mm")))
pocket5 = body.newObject("PartDesign::Pocket", "Pocket004")
pocket5.Profile = sketch7
pocket5.Length = 2
pocket5.Reversed = True
doc.recompute()

fillet3 = body.newObject("PartDesign::Fillet", "Fillet002")
fillet3.Base = (pocket5, edges_at(pocket5, [(12, 1, -298.037), (-12, 1, -298.037)]))
fillet3.Radius = 7
doc.recompute()

fillet4 = body.newObject("PartDesign::Fillet", "Fillet003")
fillet4.Base = (fillet3, edges_at(fillet3, [(22, 1, -322.5), (-22, 1, -322.5)]))
fillet4.Radius = 10
doc.recompute()

fillet5 = body.newObject("PartDesign::Fillet", "Fillet004")
fillet5.Base = (fillet4, edges_at(fillet4, [(12, 1, -310.037), (-12, 1, -310.037)]))
fillet5.Radius = 10

doc.recompute()
